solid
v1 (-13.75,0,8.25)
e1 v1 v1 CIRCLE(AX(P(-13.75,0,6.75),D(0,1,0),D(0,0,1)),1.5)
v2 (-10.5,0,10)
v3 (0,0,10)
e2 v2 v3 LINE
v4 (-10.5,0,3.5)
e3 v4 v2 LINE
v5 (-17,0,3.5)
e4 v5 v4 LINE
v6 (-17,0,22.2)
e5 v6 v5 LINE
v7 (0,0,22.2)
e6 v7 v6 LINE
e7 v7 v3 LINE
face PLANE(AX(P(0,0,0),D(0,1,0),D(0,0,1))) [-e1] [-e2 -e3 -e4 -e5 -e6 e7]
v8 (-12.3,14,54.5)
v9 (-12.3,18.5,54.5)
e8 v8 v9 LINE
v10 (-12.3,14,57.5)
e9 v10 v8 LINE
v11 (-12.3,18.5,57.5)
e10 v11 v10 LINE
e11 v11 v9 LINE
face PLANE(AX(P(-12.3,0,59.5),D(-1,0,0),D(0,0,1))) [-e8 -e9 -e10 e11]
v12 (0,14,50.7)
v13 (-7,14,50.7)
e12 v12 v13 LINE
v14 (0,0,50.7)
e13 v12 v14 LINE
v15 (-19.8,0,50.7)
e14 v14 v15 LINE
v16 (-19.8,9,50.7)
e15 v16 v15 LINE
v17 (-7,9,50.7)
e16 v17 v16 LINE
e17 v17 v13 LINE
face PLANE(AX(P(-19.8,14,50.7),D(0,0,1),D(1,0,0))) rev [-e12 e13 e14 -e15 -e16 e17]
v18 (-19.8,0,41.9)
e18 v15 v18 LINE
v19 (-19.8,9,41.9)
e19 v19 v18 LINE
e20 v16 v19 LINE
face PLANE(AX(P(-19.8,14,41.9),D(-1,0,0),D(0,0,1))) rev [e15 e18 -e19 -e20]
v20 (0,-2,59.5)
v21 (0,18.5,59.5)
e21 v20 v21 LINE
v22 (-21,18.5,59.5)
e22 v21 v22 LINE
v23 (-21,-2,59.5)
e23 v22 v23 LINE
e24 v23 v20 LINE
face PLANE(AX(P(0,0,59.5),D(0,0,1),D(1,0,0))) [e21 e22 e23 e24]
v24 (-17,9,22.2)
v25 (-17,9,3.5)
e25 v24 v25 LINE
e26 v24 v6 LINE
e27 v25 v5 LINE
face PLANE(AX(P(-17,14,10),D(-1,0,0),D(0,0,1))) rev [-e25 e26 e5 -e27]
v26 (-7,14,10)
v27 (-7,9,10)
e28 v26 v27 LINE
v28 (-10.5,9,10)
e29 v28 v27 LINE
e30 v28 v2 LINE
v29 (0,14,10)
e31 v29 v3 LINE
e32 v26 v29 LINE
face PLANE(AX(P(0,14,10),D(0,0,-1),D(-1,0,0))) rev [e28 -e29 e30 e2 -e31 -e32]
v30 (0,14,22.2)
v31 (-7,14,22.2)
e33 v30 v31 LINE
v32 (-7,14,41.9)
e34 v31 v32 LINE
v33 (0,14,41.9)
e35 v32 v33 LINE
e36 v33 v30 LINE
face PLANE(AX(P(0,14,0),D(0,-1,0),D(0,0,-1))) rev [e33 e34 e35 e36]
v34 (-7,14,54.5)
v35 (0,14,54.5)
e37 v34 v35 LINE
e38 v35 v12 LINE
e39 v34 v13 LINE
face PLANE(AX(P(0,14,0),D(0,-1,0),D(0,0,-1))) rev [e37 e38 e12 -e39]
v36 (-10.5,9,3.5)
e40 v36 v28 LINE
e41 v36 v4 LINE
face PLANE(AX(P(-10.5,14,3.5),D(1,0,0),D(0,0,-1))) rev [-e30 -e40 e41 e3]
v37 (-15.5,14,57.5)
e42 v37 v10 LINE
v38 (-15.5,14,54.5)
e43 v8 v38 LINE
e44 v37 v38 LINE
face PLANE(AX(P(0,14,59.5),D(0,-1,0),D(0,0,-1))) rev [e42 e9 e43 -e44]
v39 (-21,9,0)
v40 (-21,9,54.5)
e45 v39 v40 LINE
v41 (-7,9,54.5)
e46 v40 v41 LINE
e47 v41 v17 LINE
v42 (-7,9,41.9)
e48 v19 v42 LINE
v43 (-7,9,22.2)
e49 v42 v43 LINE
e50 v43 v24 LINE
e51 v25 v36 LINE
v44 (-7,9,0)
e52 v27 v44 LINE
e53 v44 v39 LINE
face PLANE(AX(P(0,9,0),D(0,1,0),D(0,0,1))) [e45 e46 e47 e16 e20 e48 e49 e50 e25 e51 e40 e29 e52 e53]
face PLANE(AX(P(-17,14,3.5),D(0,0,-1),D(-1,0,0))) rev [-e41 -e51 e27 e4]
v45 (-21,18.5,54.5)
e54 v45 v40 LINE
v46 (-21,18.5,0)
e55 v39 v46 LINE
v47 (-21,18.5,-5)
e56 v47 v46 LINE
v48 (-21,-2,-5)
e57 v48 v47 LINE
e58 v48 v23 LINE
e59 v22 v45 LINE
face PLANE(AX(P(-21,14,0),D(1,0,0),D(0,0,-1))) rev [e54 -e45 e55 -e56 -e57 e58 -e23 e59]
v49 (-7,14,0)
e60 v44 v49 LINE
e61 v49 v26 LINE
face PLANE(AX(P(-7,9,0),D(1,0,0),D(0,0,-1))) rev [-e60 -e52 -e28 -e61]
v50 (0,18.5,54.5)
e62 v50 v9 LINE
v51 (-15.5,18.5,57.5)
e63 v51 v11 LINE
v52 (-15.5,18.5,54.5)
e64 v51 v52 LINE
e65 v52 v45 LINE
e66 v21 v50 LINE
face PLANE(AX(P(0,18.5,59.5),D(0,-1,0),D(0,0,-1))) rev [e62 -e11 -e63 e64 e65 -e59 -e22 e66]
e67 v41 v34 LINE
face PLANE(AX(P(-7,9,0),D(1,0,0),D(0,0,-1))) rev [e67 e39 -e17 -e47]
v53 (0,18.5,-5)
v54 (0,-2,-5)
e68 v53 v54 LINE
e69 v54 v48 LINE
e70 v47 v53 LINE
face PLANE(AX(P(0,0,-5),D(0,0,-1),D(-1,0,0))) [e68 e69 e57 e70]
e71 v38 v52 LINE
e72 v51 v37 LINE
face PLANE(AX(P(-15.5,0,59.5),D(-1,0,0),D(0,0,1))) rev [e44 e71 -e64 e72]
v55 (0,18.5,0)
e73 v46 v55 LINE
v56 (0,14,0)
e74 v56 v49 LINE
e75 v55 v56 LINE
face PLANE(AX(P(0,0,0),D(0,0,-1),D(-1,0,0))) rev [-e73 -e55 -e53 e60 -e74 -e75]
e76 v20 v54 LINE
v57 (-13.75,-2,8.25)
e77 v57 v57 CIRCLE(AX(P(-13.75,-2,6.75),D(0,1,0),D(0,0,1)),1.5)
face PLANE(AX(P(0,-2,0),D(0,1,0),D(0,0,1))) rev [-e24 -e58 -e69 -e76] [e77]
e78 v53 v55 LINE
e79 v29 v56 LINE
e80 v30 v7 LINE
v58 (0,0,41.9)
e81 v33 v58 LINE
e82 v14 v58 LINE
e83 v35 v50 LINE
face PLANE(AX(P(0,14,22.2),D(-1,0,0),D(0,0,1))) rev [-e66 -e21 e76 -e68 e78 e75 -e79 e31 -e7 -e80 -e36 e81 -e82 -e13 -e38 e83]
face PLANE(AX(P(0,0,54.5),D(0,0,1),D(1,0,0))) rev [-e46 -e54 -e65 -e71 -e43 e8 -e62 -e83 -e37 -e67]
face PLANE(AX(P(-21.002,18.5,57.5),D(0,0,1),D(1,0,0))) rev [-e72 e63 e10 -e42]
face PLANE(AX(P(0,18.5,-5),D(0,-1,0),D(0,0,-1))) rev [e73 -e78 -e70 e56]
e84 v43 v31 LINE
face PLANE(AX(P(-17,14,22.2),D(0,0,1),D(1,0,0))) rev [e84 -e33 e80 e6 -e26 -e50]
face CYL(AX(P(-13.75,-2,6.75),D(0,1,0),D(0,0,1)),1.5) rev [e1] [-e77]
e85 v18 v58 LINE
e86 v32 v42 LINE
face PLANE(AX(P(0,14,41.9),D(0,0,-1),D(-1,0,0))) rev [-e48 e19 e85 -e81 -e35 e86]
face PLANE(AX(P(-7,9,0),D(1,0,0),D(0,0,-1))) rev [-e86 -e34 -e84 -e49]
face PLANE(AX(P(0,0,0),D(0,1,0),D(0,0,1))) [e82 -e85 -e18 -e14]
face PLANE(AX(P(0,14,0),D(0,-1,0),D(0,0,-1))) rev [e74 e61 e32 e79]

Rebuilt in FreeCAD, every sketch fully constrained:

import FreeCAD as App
import Part
import Sketcher

V = App.Vector


def add_polygon(sketch, points):
    """Adds a closed chain of lines whose ends are joined by coincident constraints."""
    first, n = sketch.GeometryCount, len(points)
    for a, b in zip(points, points[1:] + points[:1]):
        sketch.addGeometry(Part.LineSegment(App.Vector(*a, 0), App.Vector(*b, 0)), False)
    for i in range(n):
        sketch.addConstraint(Sketcher.Constraint("Coincident", first + i, 2, first + (i + 1) % n, 1))

doc = App.newDocument("Part")
body = doc.addObject("PartDesign::Body", "Body")

# Sketch on XZ plane
sketch1 = body.newObject("Sketcher::SketchObject", "Sketch")
sketch1.AttachmentSupport = (doc.getObject("XZ_Plane"), [""])
sketch1.MapMode = "FlatFace"
add_polygon(sketch1, [(0, 0), (-21, 0), (-21, 54.5), (0, 54.5), (0, 50.7), (-19.8, 50.7), (-19.8, 41.9), (0, 41.9), (0, 22.2), (-17, 22.2), (-17, 3.5), (-10.5, 3.5), (-10.5, 10), (0, 10)])  # lines 0-13
sketch1.addConstraint([
    Sketcher.Constraint("Horizontal", 0),
    Sketcher.Constraint("Vertical", 1),
    Sketcher.Constraint("Horizontal", 2),
    Sketcher.Constraint("Vertical", 3),
    Sketcher.Constraint("Horizontal", 4),
    Sketcher.Constraint("Vertical", 5),
    Sketcher.Constraint("Horizontal", 6),
    Sketcher.Constraint("Vertical", 7),
    Sketcher.Constraint("Horizontal", 8),
    Sketcher.Constraint("Vertical", 9),
    Sketcher.Constraint("Horizontal", 10),
    Sketcher.Constraint("Vertical", 11),
    Sketcher.Constraint("Horizontal", 12),
    Sketcher.Constraint("Vertical", 13),
    Sketcher.Constraint("Coincident", 13, 2, -1, 1),
    Sketcher.Constraint("PointOnObject", 2, 2, -2),
    Sketcher.Constraint("PointOnObject", 6, 2, -2),
    Sketcher.Constraint("Equal", 10, 11),
    Sketcher.Constraint("DistanceX", 0, 2, 0, 1, 21.0),
    Sketcher.Constraint("DistanceX", 8, 2, 8, 1, 17.0),
    Sketcher.Constraint("DistanceY", 13, 2, 13, 1, 10.0),
    Sketcher.Constraint("DistanceX", 4, 2, 4, 1, 19.8),
    Sketcher.Constraint("DistanceX", 10, 1, 10, 2, 6.5),
    Sketcher.Constraint("DistanceY", 1, 1, 1, 2, 54.5),
    Sketcher.Constraint("DistanceY", 3, 2, 3, 1, 3.8),
    Sketcher.Constraint("DistanceY", 5, 2, 5, 1, 8.8),
    Sketcher.Constraint("DistanceY", 7, 2, 7, 1, 19.7),
])
pad1 = body.newObject("PartDesign::Pad", "Pad")
pad1.Profile = sketch1
pad1.Length = 14
pad1.Reversed = True

# Sketch on XZ plane
sketch2 = body.newObject("Sketcher::SketchObject", "Sketch001")
sketch2.AttachmentSupport = (doc.getObject("XZ_Plane"), [""])
sketch2.MapMode = "FlatFace"
add_polygon(sketch2, [(-21, 0), (-21, 54.5), (0, 54.5), (0, 0)])  # lines 0-3
sketch2.addGeometry(Part.Circle(V(-13.8, 6.8, 0), V(0, 0, 1), 1.5), False)  # 4
sketch2.addConstraint([
    Sketcher.Constraint("Vertical", 0),
    Sketcher.Constraint("Horizontal", 1),
    Sketcher.Constraint("Vertical", 2),
    Sketcher.Constraint("Horizontal", 3),
    Sketcher.Constraint("Coincident", 2, 2, -1, 1),
    Sketcher.Constraint("Diameter", 4, 3.0),
    Sketcher.Constraint("DistanceX", 1, 1, 1, 2, 21.0),
    Sketcher.Constraint("DistanceY", 0, 1, 0, 2, 54.5),
    Sketcher.Constraint("DistanceX", 4, 3, -1, 1, 13.75),
    Sketcher.Constraint("DistanceY", -1, 1, 4, 3, 6.75),
])
pad2 = body.newObject("PartDesign::Pad", "Pad001")
pad2.Profile = sketch2
pad2.Length = 2

# Sketch on XZ plane
sketch3 = body.newObject("Sketcher::SketchObject", "Sketch002")
sketch3.AttachmentSupport = (doc.getObject("XZ_Plane"), [""])
sketch3.MapMode = "FlatFace"
sketch3.AttachmentOffset = App.Placement(V(0, 0, -14), App.Rotation())
add_polygon(sketch3, [(-21, 0), (-21, 54), (-7, 54), (-7, 0)])  # lines 0-3
sketch3.addConstraint([
    Sketcher.Constraint("Vertical", 0),
    Sketcher.Constraint("Horizontal", 1),
    Sketcher.Constraint("Vertical", 2),
    Sketcher.Constraint("Horizontal", 3),
    Sketcher.Constraint("PointOnObject", 2, 2, -1),
    Sketcher.Constraint("DistanceX", 1, 1, 1, 2, 14.0),
    Sketcher.Constraint("DistanceY", 0, 1, 0, 2, 54.5),
    Sketcher.Constraint("DistanceX", 0, 2, -1, 1, 21.0),
])
pocket1 = body.newObject("PartDesign::Pocket", "Pocket")
pocket1.Profile = sketch3
pocket1.Length = 5
pocket1.Reversed = True

# Sketch on XY plane
sketch4 = body.newObject("Sketcher::SketchObject", "Sketch003")
sketch4.AttachmentSupport = (doc.getObject("XY_Plane"), [""])
sketch4.MapMode = "FlatFace"
sketch4.AttachmentOffset = App.Placement(V(0, 0, 54.5), App.Rotation())
add_polygon(sketch4, [(0, -2), (0, 18.5), (-12.3, 18.5), (-12.3, 14), (-15.5, 14), (-15.5, 18.5), (-21, 18.5), (-21, -2)])  # lines 0-7
sketch4.addConstraint([
    Sketcher.Constraint("Vertical", 0),
    Sketcher.Constraint("Horizontal", 1),
    Sketcher.Constraint("Vertical", 2),
    Sketcher.Constraint("Horizontal", 3),
    Sketcher.Constraint("Vertical", 4),
    Sketcher.Constraint("Horizontal", 5),
    Sketcher.Constraint("Vertical", 6),
    Sketcher.Constraint("Horizontal", 7),
    Sketcher.Constraint("PointOnObject", 0, 2, -2),
    Sketcher.Constraint("Horizontal", 1, 2, 4, 2),
    Sketcher.Constraint("DistanceX", 7, 1, 7, 2, 21.0),
    Sketcher.Constraint("DistanceX", 1, 2, 1, 1, 12.3),
    Sketcher.Constraint("DistanceX", 3, 2, 3, 1, 3.2),
    Sketcher.Constraint("DistanceY", 0, 1, 0, 2, 20.5),
    Sketcher.Constraint("DistanceY", 2, 2, 2, 1, 4.5),
    Sketcher.Constraint("DistanceY", -1, 1, 2, 2, 14.0),
])
pad3 = body.newObject("PartDesign::Pad", "Pad002")
pad3.Profile = sketch4
pad3.Length = 5

# Sketch on XY plane
sketch5 = body.newObject("Sketcher::SketchObject", "Sketch004")
sketch5.AttachmentSupport = (doc.getObject("XY_Plane"), [""])
sketch5.MapMode = "FlatFace"
add_polygon(sketch5, [(-21, 18), (0, 18), (0, -2), (-21, -2)])  # lines 0-3
sketch5.addConstraint([
    Sketcher.Constraint("Horizontal", 0),
    Sketcher.Constraint("Vertical", 1),
    Sketcher.Constraint("Horizontal", 2),
    Sketcher.Constraint("Vertical", 3),
    Sketcher.Constraint("PointOnObject", 0, 2, -2),
    Sketcher.Constraint("DistanceX", 0, 1, 0, 2, 21.0),
    Sketcher.Constraint("DistanceY", 1, 2, 1, 1, 20.5),
    Sketcher.Constraint("DistanceY", 1, 2, -1, 1, 2.0),
])
pad4 = body.newObject("PartDesign::Pad", "Pad003")
pad4.Profile = sketch5
pad4.Length = 5
pad4.Reversed = True

# Sketch on YZ plane
sketch6 = body.newObject("Sketcher::SketchObject", "Sketch005")
sketch6.AttachmentSupport = (doc.getObject("YZ_Plane"), [""])
sketch6.MapMode = "FlatFace"
sketch6.AttachmentOffset = App.Placement(V(0, 0, -12.3), App.Rotation())
add_polygon(sketch6, [(18.5, 57.5), (14, 57.5), (14, 59.5), (18.5, 59.5)])  # lines 0-3
sketch6.addConstraint([
    Sketcher.Constraint("Horizontal", 0),
    Sketcher.Constraint("Vertical", 1),
    Sketcher.Constraint("Horizontal", 2),
    Sketcher.Constraint("Vertical", 3),
    Sketcher.Constraint("DistanceY", 1, 1, 1, 2, 2.0),
    Sketcher.Constraint("DistanceX", 0, 2, 0, 1, 4.5),
    Sketcher.Constraint("DistanceX", -1, 1, 0, 2, 14.0),
    Sketcher.Constraint("DistanceY", -1, 1, 0, 2, 57.5),
])
pad5 = body.newObject("PartDesign::Pad", "Pad004")
pad5.Profile = sketch6
pad5.Type = "UpToFirst"
pad5.Reversed = True

doc.recompute()
